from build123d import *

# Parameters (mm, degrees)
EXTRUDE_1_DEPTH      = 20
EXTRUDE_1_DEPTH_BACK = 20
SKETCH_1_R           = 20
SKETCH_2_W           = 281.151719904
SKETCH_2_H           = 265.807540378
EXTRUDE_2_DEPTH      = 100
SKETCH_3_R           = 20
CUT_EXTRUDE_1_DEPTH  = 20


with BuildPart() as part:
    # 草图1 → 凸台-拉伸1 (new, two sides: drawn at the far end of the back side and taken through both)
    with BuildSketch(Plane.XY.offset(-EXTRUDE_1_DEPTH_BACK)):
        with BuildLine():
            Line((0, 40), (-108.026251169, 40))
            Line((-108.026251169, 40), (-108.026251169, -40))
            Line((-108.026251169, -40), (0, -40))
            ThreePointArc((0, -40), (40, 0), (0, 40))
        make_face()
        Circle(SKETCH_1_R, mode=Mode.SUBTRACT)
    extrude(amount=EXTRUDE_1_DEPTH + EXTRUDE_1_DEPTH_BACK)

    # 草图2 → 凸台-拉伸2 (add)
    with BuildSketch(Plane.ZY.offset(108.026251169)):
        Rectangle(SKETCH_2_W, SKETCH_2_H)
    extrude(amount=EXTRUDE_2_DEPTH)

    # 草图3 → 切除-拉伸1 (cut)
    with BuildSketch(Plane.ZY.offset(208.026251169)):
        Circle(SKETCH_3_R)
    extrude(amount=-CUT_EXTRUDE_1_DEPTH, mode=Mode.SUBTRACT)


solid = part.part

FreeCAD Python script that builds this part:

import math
import FreeCAD as App
import Part
import Sketcher


def add_polygon(sketch, points):
    """Adds a closed chain of lines whose ends are joined by coincident constraints."""
    first, n = sketch.GeometryCount, len(points)
    for a, b in zip(points, points[1:] + points[:1]):
        sketch.addGeometry(Part.LineSegment(App.Vector(*a, 0), App.Vector(*b, 0)), False)
    for i in range(n):
        sketch.addConstraint(Sketcher.Constraint("Coincident", first + i, 2, first + (i + 1) % n, 1))

doc = App.newDocument("Part")
body = doc.addObject("PartDesign::Body", "Body")

# Sketch on XY plane
sketch1 = body.newObject("Sketcher::SketchObject", "Sketch")
sketch1.AttachmentSupport = (doc.getObject("XY_Plane"), [""])
sketch1.MapMode = "FlatFace"
sketch1.addGeometry([
    Part.LineSegment(App.Vector(0, 40, 0), App.Vector(-108.026251, 40, 0)),  # 0
    Part.LineSegment(App.Vector(-108.026251, 40, 0), App.Vector(-108.026251, -40, 0)),  # 1
    Part.LineSegment(App.Vector(-108.026251, -40, 0), App.Vector(0, -40, 0)),  # 2
    Part.ArcOfCircle(Part.Circle(App.Vector(0, 0, 0), App.Vector(0, 0, 1), 40), math.radians(-90), math.radians(90)),  # 3
    Part.Circle(App.Vector(0, 0, 0), App.Vector(0, 0, 1), 20),  # 4
], False)
sketch1.addConstraint([
    Sketcher.Constraint("Coincident", 0, 2, 1, 1),
    Sketcher.Constraint("Coincident", 1, 2, 2, 1),
    Sketcher.Constraint("Tangent", 2, 2, 3, 1),
    Sketcher.Constraint("Tangent", 3, 2, 0, 1),
    Sketcher.Constraint("Horizontal", 0),
    Sketcher.Constraint("Vertical", 1),
    Sketcher.Constraint("Horizontal", 2),
    Sketcher.Constraint("Coincident", 3, 3, -1, 1),
    Sketcher.Constraint("Coincident", 4, 3, -1, 1),
    Sketcher.Constraint("Diameter", 4, 40.0),
    Sketcher.Constraint("Radius", 3, 40.0),
    Sketcher.Constraint("DistanceX", 0, 2, 0, 1, 108.026251),
])
pad1 = body.newObject("PartDesign::Pad", "Pad")
pad1.Profile = sketch1
pad1.Type = "TwoLengths"
pad1.Length = 20
pad1.Length2 = 20

# Sketch on YZ plane
sketch2 = body.newObject("Sketcher::SketchObject", "Sketch001")
sketch2.AttachmentSupport = (doc.getObject("YZ_Plane"), [""])
sketch2.MapMode = "FlatFace"
sketch2.AttachmentOffset = App.Placement(App.Vector(0, 0, -108.026251), App.Rotation())
add_polygon(sketch2, [(132.90377, -140.57586), (-132.90377, -140.57586), (-132.90377, 140.57586), (132.90377, 140.57586)])  # lines 0-3
sketch2.addConstraint([
    Sketcher.Constraint("Horizontal", 0),
    Sketcher.Constraint("Vertical", 1),
    Sketcher.Constraint("Horizontal", 2),
    Sketcher.Constraint("Vertical", 3),
    Sketcher.Constraint("Symmetric", 0, 2, 2, 2, -1, 1),
    Sketcher.Constraint("DistanceX", 0, 2, 0, 1, 265.80754),
    Sketcher.Constraint("DistanceY", 1, 1, 1, 2, 281.15172),
])
pad2 = body.newObject("PartDesign::Pad", "Pad001")
pad2.Profile = sketch2
pad2.Length = 100
pad2.Reversed = True

# Sketch on YZ plane
sketch3 = body.newObject("Sketcher::SketchObject", "Sketch002")
sketch3.AttachmentSupport = (doc.getObject("YZ_Plane"), [""])
sketch3.MapMode = "FlatFace"
sketch3.AttachmentOffset = App.Placement(App.Vector(0, 0, -208.026251), App.Rotation())
sketch3.addGeometry(Part.Circle(App.Vector(0, 0, 0), App.Vector(0, 0, 1), 20), False)
sketch3.addConstraint([
    Sketcher.Constraint("Coincident", 0, 3, -1, 1),
    Sketcher.Constraint("Diameter", 0, 40.0),
])
pocket1 = body.newObject("PartDesign::Pocket", "Pocket")
pocket1.Profile = sketch3
pocket1.Length = 20
pocket1.Reversed = True

doc.recompute()
